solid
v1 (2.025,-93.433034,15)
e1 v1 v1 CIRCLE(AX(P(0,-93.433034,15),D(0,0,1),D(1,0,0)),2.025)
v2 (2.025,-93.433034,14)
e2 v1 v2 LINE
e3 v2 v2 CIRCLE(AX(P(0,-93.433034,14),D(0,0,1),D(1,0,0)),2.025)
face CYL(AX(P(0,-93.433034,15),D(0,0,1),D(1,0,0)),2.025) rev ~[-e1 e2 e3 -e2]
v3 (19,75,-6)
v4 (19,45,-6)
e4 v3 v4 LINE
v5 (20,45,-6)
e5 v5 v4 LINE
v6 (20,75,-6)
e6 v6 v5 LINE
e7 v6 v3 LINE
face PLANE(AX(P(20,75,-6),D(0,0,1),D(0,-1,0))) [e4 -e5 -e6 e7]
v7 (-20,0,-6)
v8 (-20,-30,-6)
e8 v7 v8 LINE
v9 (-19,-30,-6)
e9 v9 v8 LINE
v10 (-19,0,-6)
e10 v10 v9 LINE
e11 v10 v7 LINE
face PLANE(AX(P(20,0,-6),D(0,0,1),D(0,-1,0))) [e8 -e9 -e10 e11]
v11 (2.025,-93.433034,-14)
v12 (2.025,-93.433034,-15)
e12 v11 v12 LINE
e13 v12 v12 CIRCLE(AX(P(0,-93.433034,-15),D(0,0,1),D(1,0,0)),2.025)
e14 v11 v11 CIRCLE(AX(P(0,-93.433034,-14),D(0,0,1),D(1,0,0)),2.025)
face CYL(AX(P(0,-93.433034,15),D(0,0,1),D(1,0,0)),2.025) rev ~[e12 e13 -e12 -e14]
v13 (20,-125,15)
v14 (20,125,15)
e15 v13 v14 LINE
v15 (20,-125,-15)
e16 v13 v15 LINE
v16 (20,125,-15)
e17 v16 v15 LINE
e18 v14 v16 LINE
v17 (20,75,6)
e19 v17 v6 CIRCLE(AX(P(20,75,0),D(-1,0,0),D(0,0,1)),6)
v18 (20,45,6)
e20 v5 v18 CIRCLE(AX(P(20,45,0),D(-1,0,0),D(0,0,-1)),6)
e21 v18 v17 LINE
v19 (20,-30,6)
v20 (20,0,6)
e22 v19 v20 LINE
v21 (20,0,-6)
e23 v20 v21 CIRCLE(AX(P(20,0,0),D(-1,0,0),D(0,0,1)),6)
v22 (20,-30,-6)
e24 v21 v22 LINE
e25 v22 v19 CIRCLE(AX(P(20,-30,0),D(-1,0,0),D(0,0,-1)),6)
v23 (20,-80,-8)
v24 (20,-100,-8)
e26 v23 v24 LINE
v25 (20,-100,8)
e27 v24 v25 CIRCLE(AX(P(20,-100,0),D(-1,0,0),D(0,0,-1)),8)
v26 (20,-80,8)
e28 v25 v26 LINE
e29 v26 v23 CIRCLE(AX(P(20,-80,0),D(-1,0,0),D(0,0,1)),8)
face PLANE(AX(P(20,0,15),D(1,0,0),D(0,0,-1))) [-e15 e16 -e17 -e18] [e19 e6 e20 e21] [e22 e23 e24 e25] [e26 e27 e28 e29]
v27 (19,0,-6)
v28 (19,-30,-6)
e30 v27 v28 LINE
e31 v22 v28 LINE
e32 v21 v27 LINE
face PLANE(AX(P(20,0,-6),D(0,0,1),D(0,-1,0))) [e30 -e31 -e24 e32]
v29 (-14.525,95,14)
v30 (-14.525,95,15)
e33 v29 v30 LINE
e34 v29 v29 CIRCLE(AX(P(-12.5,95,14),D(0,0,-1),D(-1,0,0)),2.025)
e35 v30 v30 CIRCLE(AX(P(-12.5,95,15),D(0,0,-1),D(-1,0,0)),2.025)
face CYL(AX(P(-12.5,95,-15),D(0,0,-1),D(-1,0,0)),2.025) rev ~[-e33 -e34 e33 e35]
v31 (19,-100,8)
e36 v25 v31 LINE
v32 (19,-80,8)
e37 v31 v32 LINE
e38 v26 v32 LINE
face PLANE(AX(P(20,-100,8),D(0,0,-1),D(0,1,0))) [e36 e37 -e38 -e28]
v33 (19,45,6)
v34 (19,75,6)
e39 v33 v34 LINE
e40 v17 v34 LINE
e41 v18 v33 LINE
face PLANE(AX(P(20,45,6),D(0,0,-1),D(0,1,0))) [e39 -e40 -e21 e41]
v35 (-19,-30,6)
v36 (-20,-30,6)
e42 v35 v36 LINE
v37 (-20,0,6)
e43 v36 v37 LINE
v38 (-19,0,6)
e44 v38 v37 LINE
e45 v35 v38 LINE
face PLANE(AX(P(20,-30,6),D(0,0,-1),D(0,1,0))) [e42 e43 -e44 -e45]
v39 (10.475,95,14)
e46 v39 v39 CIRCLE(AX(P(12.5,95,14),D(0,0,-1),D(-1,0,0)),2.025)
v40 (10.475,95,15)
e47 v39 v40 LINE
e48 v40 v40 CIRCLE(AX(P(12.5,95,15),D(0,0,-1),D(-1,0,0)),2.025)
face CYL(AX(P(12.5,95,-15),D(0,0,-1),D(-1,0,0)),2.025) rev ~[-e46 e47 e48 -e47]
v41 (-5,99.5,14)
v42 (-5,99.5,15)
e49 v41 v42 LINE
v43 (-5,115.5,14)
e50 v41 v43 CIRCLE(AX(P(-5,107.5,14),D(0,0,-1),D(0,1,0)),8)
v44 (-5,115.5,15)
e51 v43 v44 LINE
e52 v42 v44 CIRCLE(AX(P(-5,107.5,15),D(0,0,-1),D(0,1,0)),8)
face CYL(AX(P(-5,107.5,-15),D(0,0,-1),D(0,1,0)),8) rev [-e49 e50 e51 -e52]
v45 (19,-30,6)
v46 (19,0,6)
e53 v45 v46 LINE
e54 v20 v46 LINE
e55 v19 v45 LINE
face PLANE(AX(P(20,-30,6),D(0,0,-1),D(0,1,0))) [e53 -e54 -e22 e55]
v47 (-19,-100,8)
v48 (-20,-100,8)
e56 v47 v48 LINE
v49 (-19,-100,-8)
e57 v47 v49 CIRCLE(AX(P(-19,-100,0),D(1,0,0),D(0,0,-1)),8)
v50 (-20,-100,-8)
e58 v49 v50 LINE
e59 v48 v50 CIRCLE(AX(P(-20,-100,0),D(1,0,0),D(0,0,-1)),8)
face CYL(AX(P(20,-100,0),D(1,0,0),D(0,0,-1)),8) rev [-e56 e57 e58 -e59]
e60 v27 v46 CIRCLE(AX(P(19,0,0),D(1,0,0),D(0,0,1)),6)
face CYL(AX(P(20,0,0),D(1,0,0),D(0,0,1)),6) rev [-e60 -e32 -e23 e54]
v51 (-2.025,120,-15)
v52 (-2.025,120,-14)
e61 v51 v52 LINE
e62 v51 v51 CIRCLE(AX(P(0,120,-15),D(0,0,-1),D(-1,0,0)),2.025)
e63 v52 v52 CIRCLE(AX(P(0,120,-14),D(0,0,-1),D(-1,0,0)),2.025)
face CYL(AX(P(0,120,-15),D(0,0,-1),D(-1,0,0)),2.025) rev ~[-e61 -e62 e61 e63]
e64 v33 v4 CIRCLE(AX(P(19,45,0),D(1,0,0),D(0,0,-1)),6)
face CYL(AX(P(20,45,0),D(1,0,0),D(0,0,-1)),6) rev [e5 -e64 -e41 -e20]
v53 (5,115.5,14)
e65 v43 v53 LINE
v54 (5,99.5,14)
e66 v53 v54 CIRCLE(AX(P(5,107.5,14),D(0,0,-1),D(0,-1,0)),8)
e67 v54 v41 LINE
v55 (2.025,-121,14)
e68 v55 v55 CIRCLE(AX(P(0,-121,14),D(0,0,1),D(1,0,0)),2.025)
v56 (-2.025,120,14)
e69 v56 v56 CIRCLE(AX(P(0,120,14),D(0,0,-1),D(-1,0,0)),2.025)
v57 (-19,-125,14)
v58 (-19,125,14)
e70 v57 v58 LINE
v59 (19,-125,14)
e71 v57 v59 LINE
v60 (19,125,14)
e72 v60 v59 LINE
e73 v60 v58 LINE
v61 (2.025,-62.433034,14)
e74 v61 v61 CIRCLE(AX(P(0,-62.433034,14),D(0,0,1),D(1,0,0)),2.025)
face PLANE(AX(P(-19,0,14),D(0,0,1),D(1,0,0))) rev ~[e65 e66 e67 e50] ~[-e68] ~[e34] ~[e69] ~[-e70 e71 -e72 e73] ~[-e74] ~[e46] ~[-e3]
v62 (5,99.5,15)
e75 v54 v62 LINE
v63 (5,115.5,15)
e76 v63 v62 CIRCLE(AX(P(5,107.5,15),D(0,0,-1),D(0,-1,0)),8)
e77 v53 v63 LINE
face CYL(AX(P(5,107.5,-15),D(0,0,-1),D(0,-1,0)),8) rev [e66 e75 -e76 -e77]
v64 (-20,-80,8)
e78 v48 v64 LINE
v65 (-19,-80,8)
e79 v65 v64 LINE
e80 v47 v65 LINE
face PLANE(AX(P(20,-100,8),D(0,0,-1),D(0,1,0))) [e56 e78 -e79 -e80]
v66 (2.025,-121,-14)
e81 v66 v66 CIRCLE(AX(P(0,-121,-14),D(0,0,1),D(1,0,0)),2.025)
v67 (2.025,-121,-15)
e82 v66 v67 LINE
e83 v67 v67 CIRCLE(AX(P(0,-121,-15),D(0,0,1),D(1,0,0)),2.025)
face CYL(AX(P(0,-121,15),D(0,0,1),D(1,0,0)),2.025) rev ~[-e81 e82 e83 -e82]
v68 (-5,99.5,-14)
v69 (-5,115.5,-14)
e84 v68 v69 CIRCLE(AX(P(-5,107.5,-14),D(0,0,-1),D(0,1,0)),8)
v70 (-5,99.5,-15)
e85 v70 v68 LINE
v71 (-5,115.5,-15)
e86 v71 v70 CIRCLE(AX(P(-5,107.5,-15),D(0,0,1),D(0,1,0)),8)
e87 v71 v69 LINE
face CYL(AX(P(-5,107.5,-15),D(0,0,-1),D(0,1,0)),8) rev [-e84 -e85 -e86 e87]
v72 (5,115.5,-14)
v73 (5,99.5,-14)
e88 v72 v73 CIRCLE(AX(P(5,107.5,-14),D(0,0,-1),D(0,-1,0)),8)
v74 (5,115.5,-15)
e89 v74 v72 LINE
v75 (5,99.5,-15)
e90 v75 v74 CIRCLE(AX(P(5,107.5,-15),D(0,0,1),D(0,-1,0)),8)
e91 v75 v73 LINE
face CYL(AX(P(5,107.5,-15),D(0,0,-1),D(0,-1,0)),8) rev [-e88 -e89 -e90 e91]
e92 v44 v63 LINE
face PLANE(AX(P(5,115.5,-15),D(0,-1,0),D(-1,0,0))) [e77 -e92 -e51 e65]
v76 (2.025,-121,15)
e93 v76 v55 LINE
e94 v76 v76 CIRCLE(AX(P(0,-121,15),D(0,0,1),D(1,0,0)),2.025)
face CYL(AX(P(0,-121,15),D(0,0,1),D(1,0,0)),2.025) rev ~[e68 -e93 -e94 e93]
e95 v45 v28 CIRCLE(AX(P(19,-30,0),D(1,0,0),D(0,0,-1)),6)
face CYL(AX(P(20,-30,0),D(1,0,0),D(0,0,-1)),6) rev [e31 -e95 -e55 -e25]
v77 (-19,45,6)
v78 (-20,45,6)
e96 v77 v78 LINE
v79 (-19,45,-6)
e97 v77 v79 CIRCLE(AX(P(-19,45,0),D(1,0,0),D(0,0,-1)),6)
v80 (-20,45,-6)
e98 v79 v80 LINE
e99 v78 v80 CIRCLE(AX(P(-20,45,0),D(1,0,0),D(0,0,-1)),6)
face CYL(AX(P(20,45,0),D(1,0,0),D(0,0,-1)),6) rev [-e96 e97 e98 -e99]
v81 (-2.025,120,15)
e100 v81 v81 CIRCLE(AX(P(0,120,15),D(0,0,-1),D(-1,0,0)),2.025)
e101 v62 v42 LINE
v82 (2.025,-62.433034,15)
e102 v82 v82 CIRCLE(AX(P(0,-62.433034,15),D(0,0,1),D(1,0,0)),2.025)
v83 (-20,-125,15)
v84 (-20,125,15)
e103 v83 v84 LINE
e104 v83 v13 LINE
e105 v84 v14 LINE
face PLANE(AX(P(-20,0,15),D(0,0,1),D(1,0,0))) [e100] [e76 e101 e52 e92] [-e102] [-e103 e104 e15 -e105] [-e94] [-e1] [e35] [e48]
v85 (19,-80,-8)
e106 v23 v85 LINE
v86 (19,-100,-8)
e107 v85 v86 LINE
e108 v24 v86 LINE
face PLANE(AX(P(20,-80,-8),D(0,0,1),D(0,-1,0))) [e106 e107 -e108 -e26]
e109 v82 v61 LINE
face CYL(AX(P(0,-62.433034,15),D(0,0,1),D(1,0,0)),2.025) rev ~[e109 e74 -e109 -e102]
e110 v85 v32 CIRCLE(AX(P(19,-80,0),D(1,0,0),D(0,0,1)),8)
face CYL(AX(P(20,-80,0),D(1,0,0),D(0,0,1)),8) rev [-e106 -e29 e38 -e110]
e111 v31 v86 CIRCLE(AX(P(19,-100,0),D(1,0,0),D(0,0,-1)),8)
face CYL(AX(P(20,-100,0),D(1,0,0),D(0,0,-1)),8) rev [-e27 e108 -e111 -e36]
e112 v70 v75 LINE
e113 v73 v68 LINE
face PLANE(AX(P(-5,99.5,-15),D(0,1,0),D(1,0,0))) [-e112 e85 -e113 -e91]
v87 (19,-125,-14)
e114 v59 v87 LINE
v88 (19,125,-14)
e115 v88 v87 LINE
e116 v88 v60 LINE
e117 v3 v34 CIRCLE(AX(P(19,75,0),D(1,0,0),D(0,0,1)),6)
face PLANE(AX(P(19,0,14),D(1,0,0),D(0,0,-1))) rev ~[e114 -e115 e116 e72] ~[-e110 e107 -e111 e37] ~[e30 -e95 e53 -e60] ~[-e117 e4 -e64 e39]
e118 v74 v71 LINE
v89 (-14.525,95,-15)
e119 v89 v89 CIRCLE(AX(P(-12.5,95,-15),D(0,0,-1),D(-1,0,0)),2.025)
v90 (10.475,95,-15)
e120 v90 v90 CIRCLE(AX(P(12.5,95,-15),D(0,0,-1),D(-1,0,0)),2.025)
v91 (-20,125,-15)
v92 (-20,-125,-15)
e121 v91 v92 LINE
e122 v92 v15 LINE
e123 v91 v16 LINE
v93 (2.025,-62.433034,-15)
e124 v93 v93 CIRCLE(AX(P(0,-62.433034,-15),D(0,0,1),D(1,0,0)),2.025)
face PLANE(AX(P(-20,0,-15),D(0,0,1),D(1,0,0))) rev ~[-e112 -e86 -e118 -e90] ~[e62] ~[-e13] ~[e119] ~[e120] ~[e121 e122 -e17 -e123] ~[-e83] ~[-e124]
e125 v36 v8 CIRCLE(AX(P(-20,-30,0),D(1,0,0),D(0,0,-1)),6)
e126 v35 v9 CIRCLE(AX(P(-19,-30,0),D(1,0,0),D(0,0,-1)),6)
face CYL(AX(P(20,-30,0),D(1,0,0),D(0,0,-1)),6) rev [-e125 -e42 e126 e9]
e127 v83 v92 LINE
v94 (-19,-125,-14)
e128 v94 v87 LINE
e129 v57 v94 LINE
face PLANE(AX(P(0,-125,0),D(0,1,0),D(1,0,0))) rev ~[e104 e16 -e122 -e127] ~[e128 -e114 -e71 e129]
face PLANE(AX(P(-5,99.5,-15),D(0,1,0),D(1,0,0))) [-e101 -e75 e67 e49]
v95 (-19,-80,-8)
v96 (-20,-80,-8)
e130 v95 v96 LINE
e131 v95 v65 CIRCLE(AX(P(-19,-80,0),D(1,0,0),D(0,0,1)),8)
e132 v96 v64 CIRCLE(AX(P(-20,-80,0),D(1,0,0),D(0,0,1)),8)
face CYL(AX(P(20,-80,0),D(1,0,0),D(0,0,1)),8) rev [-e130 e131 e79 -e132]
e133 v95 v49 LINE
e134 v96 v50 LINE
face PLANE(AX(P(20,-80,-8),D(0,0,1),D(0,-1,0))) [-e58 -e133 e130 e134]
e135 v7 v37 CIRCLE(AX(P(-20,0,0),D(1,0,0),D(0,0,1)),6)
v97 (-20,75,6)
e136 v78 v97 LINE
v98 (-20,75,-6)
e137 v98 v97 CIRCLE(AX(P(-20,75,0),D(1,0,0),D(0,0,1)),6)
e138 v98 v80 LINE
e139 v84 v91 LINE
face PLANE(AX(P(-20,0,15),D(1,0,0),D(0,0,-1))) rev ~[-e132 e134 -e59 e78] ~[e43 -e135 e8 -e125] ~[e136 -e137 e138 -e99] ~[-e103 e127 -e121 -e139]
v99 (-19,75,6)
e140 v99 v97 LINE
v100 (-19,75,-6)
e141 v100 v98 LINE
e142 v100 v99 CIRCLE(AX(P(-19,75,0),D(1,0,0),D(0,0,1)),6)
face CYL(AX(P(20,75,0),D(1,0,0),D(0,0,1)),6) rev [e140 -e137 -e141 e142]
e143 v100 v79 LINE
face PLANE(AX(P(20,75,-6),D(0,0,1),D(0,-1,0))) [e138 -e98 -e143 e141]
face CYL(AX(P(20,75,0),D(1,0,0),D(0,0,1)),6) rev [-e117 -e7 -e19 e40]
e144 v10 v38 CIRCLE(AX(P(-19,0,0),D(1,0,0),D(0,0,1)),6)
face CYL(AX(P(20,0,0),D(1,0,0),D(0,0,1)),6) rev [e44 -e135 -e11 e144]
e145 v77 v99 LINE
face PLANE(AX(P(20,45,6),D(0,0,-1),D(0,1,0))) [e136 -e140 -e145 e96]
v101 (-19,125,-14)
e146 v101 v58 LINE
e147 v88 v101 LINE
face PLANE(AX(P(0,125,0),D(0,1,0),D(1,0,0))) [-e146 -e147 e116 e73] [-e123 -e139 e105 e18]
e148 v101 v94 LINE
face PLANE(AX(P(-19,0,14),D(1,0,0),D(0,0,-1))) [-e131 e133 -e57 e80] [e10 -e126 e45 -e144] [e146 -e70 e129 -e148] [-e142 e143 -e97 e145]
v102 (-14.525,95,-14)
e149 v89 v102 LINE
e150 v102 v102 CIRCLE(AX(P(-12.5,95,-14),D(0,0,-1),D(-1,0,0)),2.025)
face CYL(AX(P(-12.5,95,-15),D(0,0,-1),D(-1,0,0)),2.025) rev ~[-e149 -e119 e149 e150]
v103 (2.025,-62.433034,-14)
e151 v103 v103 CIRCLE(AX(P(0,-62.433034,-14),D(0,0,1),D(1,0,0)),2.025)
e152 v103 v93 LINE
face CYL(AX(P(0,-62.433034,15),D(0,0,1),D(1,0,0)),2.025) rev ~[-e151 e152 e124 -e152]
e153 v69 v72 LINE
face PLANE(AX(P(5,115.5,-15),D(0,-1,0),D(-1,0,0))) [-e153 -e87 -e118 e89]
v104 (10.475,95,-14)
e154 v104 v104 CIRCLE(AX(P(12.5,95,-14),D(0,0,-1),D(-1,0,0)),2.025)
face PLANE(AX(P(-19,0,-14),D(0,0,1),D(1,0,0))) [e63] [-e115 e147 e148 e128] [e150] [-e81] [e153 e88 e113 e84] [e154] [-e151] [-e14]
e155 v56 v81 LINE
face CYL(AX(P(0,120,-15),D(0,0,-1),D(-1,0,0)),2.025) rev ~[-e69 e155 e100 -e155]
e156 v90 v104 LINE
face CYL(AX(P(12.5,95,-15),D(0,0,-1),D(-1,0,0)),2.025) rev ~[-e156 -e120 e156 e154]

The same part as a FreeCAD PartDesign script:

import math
import FreeCAD as App
import Part
import Sketcher
from FreeCAD import Vector


def add_polygon(sketch, points):
    """Adds a closed chain of lines whose ends are joined by coincident constraints."""
    first, n = sketch.GeometryCount, len(points)
    for a, b in zip(points, points[1:] + points[:1]):
        sketch.addGeometry(Part.LineSegment(App.Vector(*a, 0), App.Vector(*b, 0)), False)
    for i in range(n):
        sketch.addConstraint(Sketcher.Constraint("Coincident", first + i, 2, first + (i + 1) % n, 1))

doc = App.newDocument("Part")
params = doc.addObject("Spreadsheet::Sheet", "Params")
for row, (alias, value) in enumerate([
    ("sketch1_width", "40 mm"),
    ("sketch1_height", "30 mm"),
    ("pad1_length", "250 mm"),
    ("sketch2_width", "38 mm"),
    ("sketch2_height", "28 mm"),
    ("sketch3_diameter", "4.05 mm"),
    ("sketch4_diameter", "4.05 mm"),
    ("sketch5_radius", "8 mm"),
    ("sketch5_width", "20 mm"),
    ("sketch6_radius", "8 mm"),
    ("sketch6_width", "10 mm"),
    ("sketch7_radius", "6 mm"),
    ("sketch7_width", "30 mm"),
], start=1):
    params.set(f"A{row}", alias)
    params.set(f"B{row}", "=" + value)
    params.setAlias(f"B{row}", alias)

body = doc.addObject("PartDesign::Body", "Body")

# Sketch on XZ plane
sketch1 = doc.addObject("Sketcher::SketchObject", "Sketch")
body.addObject(sketch1)
sketch1.AttachmentSupport = (doc.XZ_Plane, [""])
sketch1.MapMode = "FlatFace"
add_polygon(sketch1, [(-20, -15), (-20, 15), (20, 15), (20, -15)])  # lines 0-3
sketch1.addConstraint([
    Sketcher.Constraint("Vertical", 0),
    Sketcher.Constraint("Horizontal", 1),
    Sketcher.Constraint("Vertical", 2),
    Sketcher.Constraint("Horizontal", 3),
    Sketcher.Constraint("Symmetric", 0, 2, 2, 2, -1, 1),
    Sketcher.Constraint("DistanceX", 1, 1, 1, 2, 40.0),
    Sketcher.Constraint("DistanceY", 0, 1, 0, 2, 30.0),
])
sketch1.setExpression("Constraints[9]", "Params.sketch1_width")
sketch1.setExpression("Constraints[10]", "Params.sketch1_height")
pad1 = doc.addObject("PartDesign::Pad", "Pad")
body.addObject(pad1)
pad1.Profile = sketch1
pad1.setExpression("Length", "Params.pad1_length")
pad1.Midplane = True

# Sketch on XZ plane
sketch2 = doc.addObject("Sketcher::SketchObject", "Sketch001")
body.addObject(sketch2)
sketch2.AttachmentSupport = (doc.XZ_Plane, [""])
sketch2.MapMode = "FlatFace"
add_polygon(sketch2, [(-19, -14), (-19, 14), (19, 14), (19, -14)])  # lines 0-3
sketch2.addConstraint([
    Sketcher.Constraint("Vertical", 0),
    Sketcher.Constraint("Horizontal", 1),
    Sketcher.Constraint("Vertical", 2),
    Sketcher.Constraint("Horizontal", 3),
    Sketcher.Constraint("Symmetric", 0, 2, 2, 2, -1, 1),
    Sketcher.Constraint("DistanceX", 1, 1, 1, 2, 38.0),
    Sketcher.Constraint("DistanceY", 0, 1, 0, 2, 28.0),
])
sketch2.setExpression("Constraints[9]", "Params.sketch2_width")
sketch2.setExpression("Constraints[10]", "Params.sketch2_height")
pocket1 = doc.addObject("PartDesign::Pocket", "Pocket")
body.addObject(pocket1)
pocket1.Profile = sketch2
pocket1.Type = "ThroughAll"
pocket1.Midplane = True

# Sketch on XY plane
sketch3 = doc.addObject("Sketcher::SketchObject", "Sketch002")
body.addObject(sketch3)
sketch3.AttachmentSupport = (doc.XY_Plane, [""])
sketch3.MapMode = "FlatFace"
sketch3.AttachmentOffset = App.Placement(Vector(0, 0, 15), App.Rotation())
sketch3.addGeometry([
    Part.Circle(Vector(0, -62.433034, 0), Vector(0, 0, 1), 2.025),
    Part.Circle(Vector(0, -93.433034, 0), Vector(0, 0, 1), 2.025),
    Part.Circle(Vector(0, -121, 0), Vector(0, 0, 1), 2.025),
], False)
sketch3.addConstraint([
    Sketcher.Constraint("Equal", 0, 1),
    Sketcher.Constraint("Equal", 1, 2),
    Sketcher.Constraint("PointOnObject", 0, 3, -2),
    Sketcher.Constraint("PointOnObject", 1, 3, -2),
    Sketcher.Constraint("PointOnObject", 2, 3, -2),
    Sketcher.Constraint("Diameter", 0, 4.05),
    Sketcher.Constraint("DistanceY", 2, 3, -1, 1, 121.0),
    Sketcher.Constraint("DistanceY", 1, 3, 0, 3, 31.0),
    Sketcher.Constraint("DistanceY", 0, 3, -1, 1, 62.433034),
])
sketch3.setExpression("Constraints[5]", "Params.sketch3_diameter")
pocket2 = doc.addObject("PartDesign::Pocket", "Pocket001")
body.addObject(pocket2)
pocket2.Profile = sketch3
pocket2.Type = "ThroughAll"
pocket2.Midplane = True

# Sketch on XY plane
sketch4 = doc.addObject("Sketcher::SketchObject", "Sketch003")
body.addObject(sketch4)
sketch4.AttachmentSupport = (doc.XY_Plane, [""])
sketch4.MapMode = "FlatFace"
sketch4.AttachmentOffset = App.Placement(Vector(0, 0, -15), App.Rotation())
sketch4.addGeometry([
    Part.Circle(Vector(0, 120, 0), Vector(0, 0, 1), 2.025),
    Part.Circle(Vector(-12.5, 95, 0), Vector(0, 0, 1), 2.025),
    Part.Circle(Vector(12.5, 95, 0), Vector(0, 0, 1), 2.025),
], False)
sketch4.addConstraint([
    Sketcher.Constraint("Equal", 0, 1),
    Sketcher.Constraint("Equal", 1, 2),
    Sketcher.Constraint("Symmetric", 1, 3, 2, 3, -2),
    Sketcher.Constraint("PointOnObject", 0, 3, -2),
    Sketcher.Constraint("Diameter", 0, 4.05),
    Sketcher.Constraint("DistanceY", -1, 1, 0, 3, 120.0),
    Sketcher.Constraint("DistanceY", -1, 1, 1, 3, 95.0),
    Sketcher.Constraint("DistanceX", 1, 3, 2, 3, 25.0),
])
sketch4.setExpression("Constraints[4]", "Params.sketch4_diameter")
pocket3 = doc.addObject("PartDesign::Pocket", "Pocket002")
body.addObject(pocket3)
pocket3.Profile = sketch4
pocket3.Type = "ThroughAll"
pocket3.Midplane = True

# Sketch on YZ plane
sketch5 = doc.addObject("Sketcher::SketchObject", "Sketch004")
body.addObject(sketch5)
sketch5.AttachmentSupport = (doc.YZ_Plane, [""])
sketch5.MapMode = "FlatFace"
sketch5.AttachmentOffset = App.Placement(Vector(0, 0, 20), App.Rotation())
sketch5.addGeometry([
    Part.LineSegment(Vector(-80, 8, 0), Vector(-100, 8, 0)),
    Part.ArcOfCircle(Part.Circle(Vector(-100, 0, 0), Vector(0, 0, 1), 8), math.radians(90), math.radians(270)),
    Part.LineSegment(Vector(-100, -8, 0), Vector(-80, -8, 0)),
    Part.ArcOfCircle(Part.Circle(Vector(-80, 0, 0), Vector(0, 0, 1), 8), math.radians(-90), math.radians(90)),
], False)
sketch5.addConstraint([
    Sketcher.Constraint("Tangent", 0, 2, 1, 1),
    Sketcher.Constraint("Tangent", 1, 2, 2, 1),
    Sketcher.Constraint("Tangent", 2, 2, 3, 1),
    Sketcher.Constraint("Tangent", 3, 2, 0, 1),
    Sketcher.Constraint("Horizontal", 0),
    Sketcher.Constraint("Horizontal", 2),
    Sketcher.Constraint("PointOnObject", 1, 3, -1),
    Sketcher.Constraint("Radius", 1, 8.0),
    Sketcher.Constraint("DistanceX", 0, 2, 0, 1, 20.0),
    Sketcher.Constraint("DistanceX", 1, 3, -1, 1, 100.0),
])
sketch5.setExpression("Constraints[7]", "Params.sketch5_radius")
sketch5.setExpression("Constraints[8]", "Params.sketch5_width")
pocket4 = doc.addObject("PartDesign::Pocket", "Pocket003")
body.addObject(pocket4)
pocket4.Profile = sketch5
pocket4.Type = "ThroughAll"
pocket4.Midplane = True

# Sketch on XY plane
sketch6 = doc.addObject("Sketcher::SketchObject", "Sketch005")
body.addObject(sketch6)
sketch6.AttachmentSupport = (doc.XY_Plane, [""])
sketch6.MapMode = "FlatFace"
sketch6.AttachmentOffset = App.Placement(Vector(0, 0, -15), App.Rotation())
sketch6.addGeometry([
    Part.LineSegment(Vector(-5, 115.5, 0), Vector(5, 115.5, 0)),
    Part.ArcOfCircle(Part.Circle(Vector(5, 107.5, 0), Vector(0, 0, 1), 8), math.radians(-90), math.radians(90)),
    Part.LineSegment(Vector(5, 99.5, 0), Vector(-5, 99.5, 0)),
    Part.ArcOfCircle(Part.Circle(Vector(-5, 107.5, 0), Vector(0, 0, 1), 8), math.radians(90), math.radians(270)),
], False)
sketch6.addConstraint([
    Sketcher.Constraint("Tangent", 0, 2, 1, 2),
    Sketcher.Constraint("Tangent", 1, 1, 2, 1),
    Sketcher.Constraint("Tangent", 2, 2, 3, 2),
    Sketcher.Constraint("Tangent", 3, 1, 0, 1),
    Sketcher.Constraint("Horizontal", 0),
    Sketcher.Constraint("Horizontal", 2),
    Sketcher.Constraint("Radius", 1, 8.0),
    Sketcher.Constraint("DistanceX", 0, 1, 0, 2, 10.0),
    Sketcher.Constraint("DistanceX", -1, 1, 1, 3, 5.0),
    Sketcher.Constraint("DistanceY", -1, 1, 1, 3, 107.5),
])
sketch6.setExpression("Constraints[6]", "Params.sketch6_radius")
sketch6.setExpression("Constraints[7]", "Params.sketch6_width")
pocket5 = doc.addObject("PartDesign::Pocket", "Pocket004")
body.addObject(pocket5)
pocket5.Profile = sketch6
pocket5.Type = "ThroughAll"
pocket5.Midplane = True

# Sketch on YZ plane
sketch7 = doc.addObject("Sketcher::SketchObject", "Sketch006")
body.addObject(sketch7)
sketch7.AttachmentSupport = (doc.YZ_Plane, [""])
sketch7.MapMode = "FlatFace"
sketch7.AttachmentOffset = App.Placement(Vector(0, 0, 20), App.Rotation())
sketch7.addGeometry([
    Part.LineSegment(Vector(75, 6, 0), Vector(45, 6, 0)),  # 0
    Part.ArcOfCircle(Part.Circle(Vector(45, 0, 0), Vector(0, 0, 1), 6), math.radians(90), math.radians(270)),  # 1
    Part.LineSegment(Vector(45, -6, 0), Vector(75, -6, 0)),  # 2
    Part.ArcOfCircle(Part.Circle(Vector(75, 0, 0), Vector(0, 0, 1), 6), math.radians(-90), math.radians(90)),  # 3
    Part.LineSegment(Vector(0, 6, 0), Vector(-30, 6, 0)),  # 4
    Part.ArcOfCircle(Part.Circle(Vector(-30, 0, 0), Vector(0, 0, 1), 6), math.radians(90), math.radians(270)),  # 5
    Part.LineSegment(Vector(-30, -6, 0), Vector(0, -6, 0)),  # 6
    Part.ArcOfCircle(Part.Circle(Vector(0, 0, 0), Vector(0, 0, 1), 6), math.radians(-90), math.radians(90)),  # 7
], False)
sketch7.addConstraint([
    Sketcher.Constraint("Tangent", 0, 2, 1, 1),
    Sketcher.Constraint("Tangent", 1, 2, 2, 1),
    Sketcher.Constraint("Tangent", 2, 2, 3, 1),
    Sketcher.Constraint("Tangent", 3, 2, 0, 1),
    Sketcher.Constraint("Tangent", 4, 2, 5, 1),
    Sketcher.Constraint("Tangent", 5, 2, 6, 1),
    Sketcher.Constraint("Tangent", 6, 2, 7, 1),
    Sketcher.Constraint("Tangent", 7, 2, 4, 1),
    Sketcher.Constraint("Horizontal", 0),
    Sketcher.Constraint("Horizontal", 2),
    Sketcher.Constraint("Horizontal", 4),
    Sketcher.Constraint("Horizontal", 6),
    Sketcher.Constraint("Coincident", 7, 3, -1, 1),
    Sketcher.Constraint("Equal", 3, 5),
    Sketcher.Constraint("PointOnObject", 1, 3, -1),
    Sketcher.Constraint("Equal", 2, 4),
    Sketcher.Constraint("Radius", 1, 6.0),
    Sketcher.Constraint("DistanceX", 0, 2, 0, 1, 30.0),
    Sketcher.Constraint("DistanceX", -1, 1, 1, 3, 45.0),
])
sketch7.setExpression("Constraints[16]", "Params.sketch7_radius")
sketch7.setExpression("Constraints[17]", "Params.sketch7_width")
pocket6 = doc.addObject("PartDesign::Pocket", "Pocket005")
body.addObject(pocket6)
pocket6.Profile = sketch7
pocket6.Type = "ThroughAll"
pocket6.Midplane = True

doc.recompute()
